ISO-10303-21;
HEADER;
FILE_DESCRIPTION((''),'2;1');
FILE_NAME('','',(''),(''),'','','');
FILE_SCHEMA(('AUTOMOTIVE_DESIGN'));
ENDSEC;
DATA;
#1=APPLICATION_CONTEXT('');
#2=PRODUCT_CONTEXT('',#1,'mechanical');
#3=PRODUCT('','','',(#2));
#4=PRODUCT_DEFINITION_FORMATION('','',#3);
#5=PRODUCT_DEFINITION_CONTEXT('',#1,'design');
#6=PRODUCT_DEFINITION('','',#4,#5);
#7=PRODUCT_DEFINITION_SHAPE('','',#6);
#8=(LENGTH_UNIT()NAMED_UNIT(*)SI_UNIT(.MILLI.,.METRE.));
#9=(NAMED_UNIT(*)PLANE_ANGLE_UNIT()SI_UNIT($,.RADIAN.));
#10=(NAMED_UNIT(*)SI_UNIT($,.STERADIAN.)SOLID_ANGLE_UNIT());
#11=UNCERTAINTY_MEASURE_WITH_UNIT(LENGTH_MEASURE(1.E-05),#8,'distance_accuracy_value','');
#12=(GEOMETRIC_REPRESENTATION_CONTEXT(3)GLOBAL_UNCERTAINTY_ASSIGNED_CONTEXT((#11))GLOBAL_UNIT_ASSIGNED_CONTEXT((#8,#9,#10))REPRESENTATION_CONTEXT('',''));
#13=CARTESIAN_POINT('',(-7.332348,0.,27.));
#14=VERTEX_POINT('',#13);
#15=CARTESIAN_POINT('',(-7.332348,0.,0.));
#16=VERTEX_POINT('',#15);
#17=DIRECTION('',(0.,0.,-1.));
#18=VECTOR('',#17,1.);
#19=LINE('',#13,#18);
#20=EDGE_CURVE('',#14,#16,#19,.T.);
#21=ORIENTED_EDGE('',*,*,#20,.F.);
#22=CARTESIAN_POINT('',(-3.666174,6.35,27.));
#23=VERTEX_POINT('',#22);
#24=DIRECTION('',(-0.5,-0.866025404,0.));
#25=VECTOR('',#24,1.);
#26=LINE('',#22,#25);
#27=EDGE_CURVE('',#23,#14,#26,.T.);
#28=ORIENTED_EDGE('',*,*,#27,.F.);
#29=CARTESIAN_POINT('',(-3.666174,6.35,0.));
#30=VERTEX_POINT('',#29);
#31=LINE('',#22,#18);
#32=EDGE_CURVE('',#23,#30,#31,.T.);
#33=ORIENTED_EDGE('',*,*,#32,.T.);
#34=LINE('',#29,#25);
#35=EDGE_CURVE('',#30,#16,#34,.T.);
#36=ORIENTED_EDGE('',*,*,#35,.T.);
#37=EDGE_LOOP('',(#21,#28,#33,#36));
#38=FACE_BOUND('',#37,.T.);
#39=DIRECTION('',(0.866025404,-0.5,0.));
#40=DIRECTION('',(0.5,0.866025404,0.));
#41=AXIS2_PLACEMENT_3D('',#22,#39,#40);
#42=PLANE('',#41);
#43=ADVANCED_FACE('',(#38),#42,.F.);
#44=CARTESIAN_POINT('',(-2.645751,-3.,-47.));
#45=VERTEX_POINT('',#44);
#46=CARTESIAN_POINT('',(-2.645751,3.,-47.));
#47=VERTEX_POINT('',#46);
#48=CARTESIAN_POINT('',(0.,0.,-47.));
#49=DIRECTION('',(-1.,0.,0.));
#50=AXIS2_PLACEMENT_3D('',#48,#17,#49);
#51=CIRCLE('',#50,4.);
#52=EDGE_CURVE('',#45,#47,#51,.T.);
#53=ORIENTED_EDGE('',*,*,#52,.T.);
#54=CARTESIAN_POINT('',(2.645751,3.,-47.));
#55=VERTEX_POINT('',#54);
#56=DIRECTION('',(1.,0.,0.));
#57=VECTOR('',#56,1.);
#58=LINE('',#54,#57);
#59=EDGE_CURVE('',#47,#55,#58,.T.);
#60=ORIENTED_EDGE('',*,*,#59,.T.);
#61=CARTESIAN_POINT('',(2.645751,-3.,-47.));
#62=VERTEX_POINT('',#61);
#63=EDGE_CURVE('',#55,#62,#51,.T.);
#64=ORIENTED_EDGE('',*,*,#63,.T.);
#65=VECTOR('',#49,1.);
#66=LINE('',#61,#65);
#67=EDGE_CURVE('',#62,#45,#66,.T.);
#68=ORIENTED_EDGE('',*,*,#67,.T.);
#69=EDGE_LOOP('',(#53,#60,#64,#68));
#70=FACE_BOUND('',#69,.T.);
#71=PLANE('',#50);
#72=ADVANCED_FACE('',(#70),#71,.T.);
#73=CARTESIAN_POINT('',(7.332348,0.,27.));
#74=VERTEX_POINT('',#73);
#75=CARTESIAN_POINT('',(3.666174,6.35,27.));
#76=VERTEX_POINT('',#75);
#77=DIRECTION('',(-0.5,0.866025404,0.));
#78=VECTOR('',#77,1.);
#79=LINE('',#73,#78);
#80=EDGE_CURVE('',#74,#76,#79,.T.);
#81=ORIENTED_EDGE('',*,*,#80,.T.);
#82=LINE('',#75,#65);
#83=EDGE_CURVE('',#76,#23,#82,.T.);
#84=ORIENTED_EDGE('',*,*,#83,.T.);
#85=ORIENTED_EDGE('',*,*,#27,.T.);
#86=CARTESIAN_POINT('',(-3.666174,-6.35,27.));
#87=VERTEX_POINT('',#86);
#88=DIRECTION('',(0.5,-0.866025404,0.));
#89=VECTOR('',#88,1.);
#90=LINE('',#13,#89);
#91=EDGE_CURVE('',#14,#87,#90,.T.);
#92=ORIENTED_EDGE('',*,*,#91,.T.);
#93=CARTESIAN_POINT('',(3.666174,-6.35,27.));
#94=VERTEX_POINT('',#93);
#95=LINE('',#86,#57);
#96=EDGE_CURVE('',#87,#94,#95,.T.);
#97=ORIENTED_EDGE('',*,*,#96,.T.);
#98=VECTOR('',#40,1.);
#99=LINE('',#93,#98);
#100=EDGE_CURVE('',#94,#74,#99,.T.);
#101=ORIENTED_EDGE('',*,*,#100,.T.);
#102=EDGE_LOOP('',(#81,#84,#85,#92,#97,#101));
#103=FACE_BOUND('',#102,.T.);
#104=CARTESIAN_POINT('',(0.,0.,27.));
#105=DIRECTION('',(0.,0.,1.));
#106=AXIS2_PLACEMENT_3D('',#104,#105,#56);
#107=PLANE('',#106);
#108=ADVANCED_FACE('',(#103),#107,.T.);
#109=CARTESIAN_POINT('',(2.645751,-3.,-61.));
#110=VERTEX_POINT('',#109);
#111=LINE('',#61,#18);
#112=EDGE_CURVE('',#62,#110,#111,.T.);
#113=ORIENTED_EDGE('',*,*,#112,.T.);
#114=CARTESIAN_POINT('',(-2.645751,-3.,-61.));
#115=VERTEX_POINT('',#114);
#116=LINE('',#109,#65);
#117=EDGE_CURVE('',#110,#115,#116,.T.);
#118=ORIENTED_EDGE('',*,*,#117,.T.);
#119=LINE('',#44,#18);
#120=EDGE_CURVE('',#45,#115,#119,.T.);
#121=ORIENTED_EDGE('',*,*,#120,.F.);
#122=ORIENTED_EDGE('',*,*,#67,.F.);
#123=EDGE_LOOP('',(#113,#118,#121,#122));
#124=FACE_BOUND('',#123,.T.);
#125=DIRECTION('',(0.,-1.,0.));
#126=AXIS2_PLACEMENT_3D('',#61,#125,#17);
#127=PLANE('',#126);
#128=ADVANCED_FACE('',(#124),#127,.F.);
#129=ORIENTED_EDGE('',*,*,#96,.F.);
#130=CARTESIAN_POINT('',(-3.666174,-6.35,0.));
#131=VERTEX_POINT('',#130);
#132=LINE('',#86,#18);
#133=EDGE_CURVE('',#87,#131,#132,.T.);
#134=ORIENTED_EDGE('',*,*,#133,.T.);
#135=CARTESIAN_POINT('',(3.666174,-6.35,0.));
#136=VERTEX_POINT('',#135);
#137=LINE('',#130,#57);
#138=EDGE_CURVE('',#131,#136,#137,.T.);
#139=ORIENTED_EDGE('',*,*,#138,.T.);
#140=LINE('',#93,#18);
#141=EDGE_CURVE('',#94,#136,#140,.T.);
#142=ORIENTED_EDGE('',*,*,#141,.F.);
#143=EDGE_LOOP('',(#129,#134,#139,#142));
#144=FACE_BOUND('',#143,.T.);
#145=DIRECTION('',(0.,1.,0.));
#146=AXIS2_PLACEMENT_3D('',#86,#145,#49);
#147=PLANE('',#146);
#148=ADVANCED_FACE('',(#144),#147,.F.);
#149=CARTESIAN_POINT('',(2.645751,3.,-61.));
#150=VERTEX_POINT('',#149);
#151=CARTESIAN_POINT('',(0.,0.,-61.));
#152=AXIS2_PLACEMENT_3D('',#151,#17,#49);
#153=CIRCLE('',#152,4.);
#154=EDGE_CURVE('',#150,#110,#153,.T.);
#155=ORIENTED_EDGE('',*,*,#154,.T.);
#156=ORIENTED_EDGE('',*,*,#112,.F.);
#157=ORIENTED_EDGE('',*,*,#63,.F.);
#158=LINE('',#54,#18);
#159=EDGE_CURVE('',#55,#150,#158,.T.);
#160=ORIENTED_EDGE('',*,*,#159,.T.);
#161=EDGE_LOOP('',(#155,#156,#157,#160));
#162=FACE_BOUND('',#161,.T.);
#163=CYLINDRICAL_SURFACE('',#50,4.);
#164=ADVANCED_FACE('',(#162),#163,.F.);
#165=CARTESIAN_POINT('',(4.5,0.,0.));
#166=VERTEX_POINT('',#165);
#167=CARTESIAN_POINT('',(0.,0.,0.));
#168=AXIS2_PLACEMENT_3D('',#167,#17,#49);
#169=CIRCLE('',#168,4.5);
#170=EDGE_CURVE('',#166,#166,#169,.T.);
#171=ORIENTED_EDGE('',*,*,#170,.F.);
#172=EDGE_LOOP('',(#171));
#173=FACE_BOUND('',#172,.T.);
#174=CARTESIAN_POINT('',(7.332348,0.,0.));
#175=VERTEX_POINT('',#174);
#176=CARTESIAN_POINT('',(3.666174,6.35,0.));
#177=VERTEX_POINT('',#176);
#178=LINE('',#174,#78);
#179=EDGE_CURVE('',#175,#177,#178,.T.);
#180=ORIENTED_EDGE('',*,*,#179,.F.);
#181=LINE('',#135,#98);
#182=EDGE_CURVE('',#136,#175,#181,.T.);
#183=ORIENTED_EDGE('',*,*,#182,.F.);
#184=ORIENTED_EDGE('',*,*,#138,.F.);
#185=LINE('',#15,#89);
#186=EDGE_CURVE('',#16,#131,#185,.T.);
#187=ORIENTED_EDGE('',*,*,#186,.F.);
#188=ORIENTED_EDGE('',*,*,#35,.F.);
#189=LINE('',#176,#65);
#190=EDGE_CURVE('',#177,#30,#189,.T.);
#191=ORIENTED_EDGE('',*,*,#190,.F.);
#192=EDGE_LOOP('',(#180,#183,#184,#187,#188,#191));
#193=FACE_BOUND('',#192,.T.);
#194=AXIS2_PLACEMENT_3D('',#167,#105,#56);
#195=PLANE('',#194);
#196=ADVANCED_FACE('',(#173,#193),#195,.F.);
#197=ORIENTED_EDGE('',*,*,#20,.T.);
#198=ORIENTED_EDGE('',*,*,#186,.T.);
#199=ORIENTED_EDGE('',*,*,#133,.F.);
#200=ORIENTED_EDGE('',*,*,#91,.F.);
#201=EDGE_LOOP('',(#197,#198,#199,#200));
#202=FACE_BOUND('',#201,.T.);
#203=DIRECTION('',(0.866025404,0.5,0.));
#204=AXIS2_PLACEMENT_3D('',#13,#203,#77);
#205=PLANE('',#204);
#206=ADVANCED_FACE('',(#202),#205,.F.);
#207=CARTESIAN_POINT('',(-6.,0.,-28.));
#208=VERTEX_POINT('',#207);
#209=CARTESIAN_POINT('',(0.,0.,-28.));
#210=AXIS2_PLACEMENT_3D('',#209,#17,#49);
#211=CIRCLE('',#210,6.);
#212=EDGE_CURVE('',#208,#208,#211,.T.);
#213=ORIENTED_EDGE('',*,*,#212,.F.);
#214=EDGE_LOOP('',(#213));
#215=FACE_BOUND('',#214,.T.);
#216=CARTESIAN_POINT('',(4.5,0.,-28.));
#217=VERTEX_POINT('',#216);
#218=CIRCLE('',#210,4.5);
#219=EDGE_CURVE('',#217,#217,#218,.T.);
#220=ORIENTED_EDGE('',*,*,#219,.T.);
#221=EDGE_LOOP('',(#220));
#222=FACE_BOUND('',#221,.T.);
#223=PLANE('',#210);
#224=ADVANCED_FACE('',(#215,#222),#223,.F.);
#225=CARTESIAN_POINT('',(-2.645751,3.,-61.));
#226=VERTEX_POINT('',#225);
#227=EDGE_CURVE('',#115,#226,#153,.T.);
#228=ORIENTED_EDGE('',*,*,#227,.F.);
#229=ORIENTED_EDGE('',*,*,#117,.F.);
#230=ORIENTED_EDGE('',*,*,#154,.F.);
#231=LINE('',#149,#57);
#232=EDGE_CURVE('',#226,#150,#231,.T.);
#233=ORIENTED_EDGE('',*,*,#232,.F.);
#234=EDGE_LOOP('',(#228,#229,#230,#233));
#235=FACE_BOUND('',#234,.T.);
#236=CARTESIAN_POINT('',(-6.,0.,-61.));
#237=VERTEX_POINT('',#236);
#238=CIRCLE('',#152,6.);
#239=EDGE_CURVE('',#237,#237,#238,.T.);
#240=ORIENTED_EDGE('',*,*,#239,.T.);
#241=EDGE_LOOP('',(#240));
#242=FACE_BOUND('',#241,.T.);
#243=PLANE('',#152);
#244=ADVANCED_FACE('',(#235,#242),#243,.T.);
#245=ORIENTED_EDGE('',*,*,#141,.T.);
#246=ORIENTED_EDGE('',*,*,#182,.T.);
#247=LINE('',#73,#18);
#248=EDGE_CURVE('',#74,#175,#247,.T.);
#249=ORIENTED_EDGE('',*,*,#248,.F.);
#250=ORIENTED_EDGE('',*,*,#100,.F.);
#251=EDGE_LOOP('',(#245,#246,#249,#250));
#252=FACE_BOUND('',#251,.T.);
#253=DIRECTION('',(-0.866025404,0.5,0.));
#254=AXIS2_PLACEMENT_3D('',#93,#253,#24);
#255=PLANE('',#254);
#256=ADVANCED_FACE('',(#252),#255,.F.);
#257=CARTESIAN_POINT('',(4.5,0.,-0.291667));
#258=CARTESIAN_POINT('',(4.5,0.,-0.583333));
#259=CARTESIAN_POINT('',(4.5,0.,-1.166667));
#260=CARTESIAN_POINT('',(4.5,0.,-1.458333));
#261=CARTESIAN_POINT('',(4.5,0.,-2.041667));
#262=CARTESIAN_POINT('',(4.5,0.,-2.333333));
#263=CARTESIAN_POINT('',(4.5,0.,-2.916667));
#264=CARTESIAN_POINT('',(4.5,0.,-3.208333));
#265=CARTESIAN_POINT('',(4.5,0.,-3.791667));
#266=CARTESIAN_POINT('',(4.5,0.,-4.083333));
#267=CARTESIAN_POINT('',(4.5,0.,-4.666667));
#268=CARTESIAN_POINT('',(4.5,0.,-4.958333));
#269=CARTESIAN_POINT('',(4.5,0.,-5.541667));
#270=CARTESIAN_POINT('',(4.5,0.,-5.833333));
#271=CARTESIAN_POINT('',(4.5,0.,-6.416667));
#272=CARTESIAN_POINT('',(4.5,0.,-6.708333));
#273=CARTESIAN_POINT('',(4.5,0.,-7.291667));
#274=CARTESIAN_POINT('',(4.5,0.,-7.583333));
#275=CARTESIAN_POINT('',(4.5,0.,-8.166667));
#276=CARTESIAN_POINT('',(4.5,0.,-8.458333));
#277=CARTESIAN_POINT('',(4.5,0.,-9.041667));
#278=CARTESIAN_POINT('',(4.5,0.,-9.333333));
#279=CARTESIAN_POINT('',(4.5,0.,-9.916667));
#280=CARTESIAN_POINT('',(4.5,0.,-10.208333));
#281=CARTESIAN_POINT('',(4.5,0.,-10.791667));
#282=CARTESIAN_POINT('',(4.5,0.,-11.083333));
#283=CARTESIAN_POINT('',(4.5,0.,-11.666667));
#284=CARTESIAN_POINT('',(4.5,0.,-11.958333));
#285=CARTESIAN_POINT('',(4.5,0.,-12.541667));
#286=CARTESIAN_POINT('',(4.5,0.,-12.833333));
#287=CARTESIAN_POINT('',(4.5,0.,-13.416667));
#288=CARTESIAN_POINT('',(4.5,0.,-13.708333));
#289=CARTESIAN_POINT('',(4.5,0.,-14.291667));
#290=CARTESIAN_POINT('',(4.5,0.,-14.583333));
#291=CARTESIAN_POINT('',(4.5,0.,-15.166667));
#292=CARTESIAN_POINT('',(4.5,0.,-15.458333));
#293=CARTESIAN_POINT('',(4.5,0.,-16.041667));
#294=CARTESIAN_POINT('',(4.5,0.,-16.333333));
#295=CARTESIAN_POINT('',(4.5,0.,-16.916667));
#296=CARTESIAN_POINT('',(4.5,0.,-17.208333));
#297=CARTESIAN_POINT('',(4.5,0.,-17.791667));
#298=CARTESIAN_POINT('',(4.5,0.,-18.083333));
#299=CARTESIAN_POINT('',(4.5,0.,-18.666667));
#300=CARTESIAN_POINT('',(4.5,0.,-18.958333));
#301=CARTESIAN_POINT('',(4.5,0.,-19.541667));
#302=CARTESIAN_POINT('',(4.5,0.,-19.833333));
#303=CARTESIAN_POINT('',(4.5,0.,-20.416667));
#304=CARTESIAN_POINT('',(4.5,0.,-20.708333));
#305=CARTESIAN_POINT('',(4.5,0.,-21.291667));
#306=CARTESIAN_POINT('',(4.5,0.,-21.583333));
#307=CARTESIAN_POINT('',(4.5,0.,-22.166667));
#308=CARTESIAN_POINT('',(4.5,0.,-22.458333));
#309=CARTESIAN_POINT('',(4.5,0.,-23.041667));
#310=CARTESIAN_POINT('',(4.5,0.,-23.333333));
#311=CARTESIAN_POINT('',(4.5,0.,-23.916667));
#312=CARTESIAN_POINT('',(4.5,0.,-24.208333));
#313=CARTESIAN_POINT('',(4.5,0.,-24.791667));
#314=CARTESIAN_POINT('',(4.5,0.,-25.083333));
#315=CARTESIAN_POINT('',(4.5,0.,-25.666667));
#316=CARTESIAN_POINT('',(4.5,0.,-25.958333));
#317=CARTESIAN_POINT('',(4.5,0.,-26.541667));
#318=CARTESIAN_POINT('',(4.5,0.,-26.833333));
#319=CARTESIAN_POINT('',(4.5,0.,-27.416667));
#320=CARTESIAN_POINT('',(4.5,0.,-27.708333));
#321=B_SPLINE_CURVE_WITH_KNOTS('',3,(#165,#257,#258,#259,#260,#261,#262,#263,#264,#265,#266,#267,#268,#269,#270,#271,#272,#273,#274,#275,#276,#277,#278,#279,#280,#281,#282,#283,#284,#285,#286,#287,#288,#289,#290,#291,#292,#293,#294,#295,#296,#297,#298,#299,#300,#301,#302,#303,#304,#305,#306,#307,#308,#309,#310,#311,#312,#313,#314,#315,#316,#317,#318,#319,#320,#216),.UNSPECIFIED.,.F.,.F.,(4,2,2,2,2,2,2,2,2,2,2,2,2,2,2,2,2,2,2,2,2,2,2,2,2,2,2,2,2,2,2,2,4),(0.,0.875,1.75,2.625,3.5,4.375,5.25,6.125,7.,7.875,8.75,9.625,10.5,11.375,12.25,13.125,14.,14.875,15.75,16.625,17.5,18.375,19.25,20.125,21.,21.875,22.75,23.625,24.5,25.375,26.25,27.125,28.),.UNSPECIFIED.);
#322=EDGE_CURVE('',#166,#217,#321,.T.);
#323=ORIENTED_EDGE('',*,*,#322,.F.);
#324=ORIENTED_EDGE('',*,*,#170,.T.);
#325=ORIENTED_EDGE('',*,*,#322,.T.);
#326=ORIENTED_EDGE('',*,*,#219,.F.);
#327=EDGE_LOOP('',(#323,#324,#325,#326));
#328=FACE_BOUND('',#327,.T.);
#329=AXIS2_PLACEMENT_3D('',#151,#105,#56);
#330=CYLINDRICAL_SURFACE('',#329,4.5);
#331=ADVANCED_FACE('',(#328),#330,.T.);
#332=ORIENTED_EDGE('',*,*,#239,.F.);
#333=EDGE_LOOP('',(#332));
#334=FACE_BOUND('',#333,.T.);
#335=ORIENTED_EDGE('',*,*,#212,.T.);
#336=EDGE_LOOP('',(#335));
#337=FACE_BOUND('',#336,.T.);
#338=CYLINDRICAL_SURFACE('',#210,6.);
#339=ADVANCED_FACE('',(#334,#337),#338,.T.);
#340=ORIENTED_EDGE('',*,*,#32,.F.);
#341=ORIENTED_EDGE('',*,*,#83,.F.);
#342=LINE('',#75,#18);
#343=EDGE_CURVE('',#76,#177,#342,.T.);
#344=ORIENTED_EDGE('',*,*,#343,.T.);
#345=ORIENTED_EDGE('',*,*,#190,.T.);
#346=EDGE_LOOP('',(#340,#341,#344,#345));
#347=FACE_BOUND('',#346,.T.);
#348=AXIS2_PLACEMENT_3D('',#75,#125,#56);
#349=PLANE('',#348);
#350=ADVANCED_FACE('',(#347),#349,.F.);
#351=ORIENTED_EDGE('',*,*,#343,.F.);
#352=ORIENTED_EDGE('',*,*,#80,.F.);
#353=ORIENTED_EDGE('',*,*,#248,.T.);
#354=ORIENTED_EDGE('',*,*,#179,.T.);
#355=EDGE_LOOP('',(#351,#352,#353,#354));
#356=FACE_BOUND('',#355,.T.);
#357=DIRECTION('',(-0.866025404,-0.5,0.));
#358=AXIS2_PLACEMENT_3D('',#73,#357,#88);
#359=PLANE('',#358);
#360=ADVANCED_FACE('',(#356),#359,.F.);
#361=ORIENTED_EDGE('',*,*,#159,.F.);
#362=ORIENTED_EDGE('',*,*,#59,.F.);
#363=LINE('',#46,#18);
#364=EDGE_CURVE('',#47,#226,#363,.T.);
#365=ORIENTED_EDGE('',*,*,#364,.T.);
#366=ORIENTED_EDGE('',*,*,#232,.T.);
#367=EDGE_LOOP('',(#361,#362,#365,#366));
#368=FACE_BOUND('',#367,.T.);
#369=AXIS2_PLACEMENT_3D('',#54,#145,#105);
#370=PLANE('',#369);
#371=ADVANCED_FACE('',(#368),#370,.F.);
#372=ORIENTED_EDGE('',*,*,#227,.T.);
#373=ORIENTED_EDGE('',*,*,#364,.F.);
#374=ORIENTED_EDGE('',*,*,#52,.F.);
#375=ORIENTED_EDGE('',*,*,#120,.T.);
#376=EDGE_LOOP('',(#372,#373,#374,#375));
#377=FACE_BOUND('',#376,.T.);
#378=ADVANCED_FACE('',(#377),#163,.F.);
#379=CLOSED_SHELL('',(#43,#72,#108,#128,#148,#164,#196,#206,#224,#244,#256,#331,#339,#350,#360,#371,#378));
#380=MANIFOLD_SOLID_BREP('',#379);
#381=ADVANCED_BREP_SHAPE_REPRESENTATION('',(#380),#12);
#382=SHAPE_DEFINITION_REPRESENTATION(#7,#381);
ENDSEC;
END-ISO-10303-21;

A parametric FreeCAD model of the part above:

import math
import FreeCAD as App
import Part
import Sketcher

V = App.Vector
Q = App.Units.Quantity


def add_polygon(sketch, points):
    """Adds a closed chain of lines whose ends are joined by coincident constraints."""
    first, n = sketch.GeometryCount, len(points)
    for a, b in zip(points, points[1:] + points[:1]):
        sketch.addGeometry(Part.LineSegment(App.Vector(*a, 0), App.Vector(*b, 0)), False)
    for i in range(n):
        sketch.addConstraint(Sketcher.Constraint("Coincident", first + i, 2, first + (i + 1) % n, 1))

doc = App.newDocument("Part")
body = doc.addObject("PartDesign::Body", "Body")

sketch1 = doc.addObject("Sketcher::SketchObject", "Sketch")
body.addObject(sketch1)
sketch1.AttachmentSupport = (doc.XY_Plane, [""])
sketch1.MapMode = "FlatFace"
add_polygon(sketch1, [(4, -6), (7, 0), (4, 6), (-4, 6), (-7, 0), (-4, -6)])
sketch1.addConstraint([
    Sketcher.Constraint("Horizontal", 2),
    Sketcher.Constraint("Horizontal", 5),
    Sketcher.Constraint("Symmetric", 0, 2, 3, 2, -1, 1),
    Sketcher.Constraint("Symmetric", 1, 2, 4, 2, -1, 1),
    Sketcher.Constraint("PointOnObject", 0, 2, -1),
    Sketcher.Constraint("Parallel", 0, 3),
    Sketcher.Constraint("Vertical", 2, 2, 4, 2),
    Sketcher.Constraint("Angle", 0, Q("60 deg")),
    Sketcher.Constraint("DistanceY", 4, 2, 2, 2, Q("12.7 mm")),
    Sketcher.Constraint("DistanceX", 2, 2, 2, 1, Q("7.332348 mm")),
])
pad1 = doc.addObject("PartDesign::Pad", "Pad")
body.addObject(pad1)
pad1.Profile = sketch1
pad1.Length = 27

sketch2 = doc.addObject("Sketcher::SketchObject", "Sketch001")
body.addObject(sketch2)
sketch2.AttachmentSupport = (doc.XY_Plane, [""])
sketch2.MapMode = "FlatFace"
sketch2.addGeometry(Part.Circle(V(0, 0, 0), V(0, 0, 1), 4.5), False)
sketch2.addConstraint([
    Sketcher.Constraint("Coincident", 0, 3, -1, 1),
    Sketcher.Constraint("Diameter", 0, Q("9 mm")),
])
pad2 = doc.addObject("PartDesign::Pad", "Pad001")
body.addObject(pad2)
pad2.Profile = sketch2
pad2.Length = 61
pad2.Reversed = True

sketch3 = doc.addObject("Sketcher::SketchObject", "Sketch002")
body.addObject(sketch3)
sketch3.AttachmentSupport = (doc.XY_Plane, [""])
sketch3.MapMode = "FlatFace"
sketch3.AttachmentOffset = App.Placement(V(0, 0, -61), App.Rotation())
sketch3.addGeometry([
    Part.LineSegment(V(-2.6, 3, 0), V(2.6, 3, 0)),
    Part.ArcOfCircle(Part.Circle(V(0, 0, 0), V(0, 0, 1), 4), math.radians(-49), math.radians(49)),
    Part.LineSegment(V(2.6, -3, 0), V(-2.6, -3, 0)),
    Part.ArcOfCircle(Part.Circle(V(0, 0, 0), V(0, 0, 1), 4), math.radians(131), math.radians(229)),
], False)
sketch3.addConstraint([
    Sketcher.Constraint("Coincident", 0, 2, 1, 2),
    Sketcher.Constraint("Coincident", 1, 1, 2, 1),
    Sketcher.Constraint("Coincident", 2, 2, 3, 2),
    Sketcher.Constraint("Coincident", 3, 1, 0, 1),
    Sketcher.Constraint("Horizontal", 0),
    Sketcher.Constraint("Horizontal", 2),
    Sketcher.Constraint("Coincident", 1, 3, -1, 1),
    Sketcher.Constraint("Coincident", 3, 3, -1, 1),
    Sketcher.Constraint("Equal", 1, 3),
    Sketcher.Constraint("Vertical", 0, 2, 1, 1),
    Sketcher.Constraint("Radius", 1, Q("4 mm")),
    Sketcher.Constraint("DistanceY", -1, 1, 0, 2, Q("3 mm")),
])
pocket1 = doc.addObject("PartDesign::Pocket", "Pocket")
body.addObject(pocket1)
pocket1.Profile = sketch3
pocket1.Length = 14
pocket1.Reversed = True

sketch4 = doc.addObject("Sketcher::SketchObject", "Sketch003")
body.addObject(sketch4)
sketch4.AttachmentSupport = (doc.XY_Plane, [""])
sketch4.MapMode = "FlatFace"
sketch4.AttachmentOffset = App.Placement(V(0, 0, -61), App.Rotation())
sketch4.addGeometry([
    Part.Circle(V(0, 0, 0), V(0, 0, 1), 6),
    Part.LineSegment(V(-2.6, -3, 0), V(2.6, -3, 0)),
    Part.ArcOfCircle(Part.Circle(V(0, 0, 0), V(0, 0, 1), 4), math.radians(-49), math.radians(49)),
    Part.LineSegment(V(2.6, 3, 0), V(-2.6, 3, 0)),
    Part.ArcOfCircle(Part.Circle(V(0, 0, 0), V(0, 0, 1), 4), math.radians(131), math.radians(229)),
], False)
sketch4.addConstraint([
    Sketcher.Constraint("Coincident", 1, 2, 2, 1),
    Sketcher.Constraint("Coincident", 2, 2, 3, 1),
    Sketcher.Constraint("Coincident", 3, 2, 4, 1),
    Sketcher.Constraint("Coincident", 4, 2, 1, 1),
    Sketcher.Constraint("Horizontal", 1),
    Sketcher.Constraint("Horizontal", 3),
    Sketcher.Constraint("Coincident", 0, 3, -1, 1),
    Sketcher.Constraint("Coincident", 2, 3, -1, 1),
    Sketcher.Constraint("Coincident", 4, 3, -1, 1),
    Sketcher.Constraint("Equal", 2, 4),
    Sketcher.Constraint("Vertical", 1, 2, 2, 2),
    Sketcher.Constraint("Diameter", 0, Q("12 mm")),
    Sketcher.Constraint("Radius", 2, Q("4 mm")),
    Sketcher.Constraint("DistanceY", 1, 2, -1, 1, Q("3 mm")),
])
pad3 = doc.addObject("PartDesign::Pad", "Pad002")
body.addObject(pad3)
pad3.Profile = sketch4
pad3.Length = 33

doc.recompute()
